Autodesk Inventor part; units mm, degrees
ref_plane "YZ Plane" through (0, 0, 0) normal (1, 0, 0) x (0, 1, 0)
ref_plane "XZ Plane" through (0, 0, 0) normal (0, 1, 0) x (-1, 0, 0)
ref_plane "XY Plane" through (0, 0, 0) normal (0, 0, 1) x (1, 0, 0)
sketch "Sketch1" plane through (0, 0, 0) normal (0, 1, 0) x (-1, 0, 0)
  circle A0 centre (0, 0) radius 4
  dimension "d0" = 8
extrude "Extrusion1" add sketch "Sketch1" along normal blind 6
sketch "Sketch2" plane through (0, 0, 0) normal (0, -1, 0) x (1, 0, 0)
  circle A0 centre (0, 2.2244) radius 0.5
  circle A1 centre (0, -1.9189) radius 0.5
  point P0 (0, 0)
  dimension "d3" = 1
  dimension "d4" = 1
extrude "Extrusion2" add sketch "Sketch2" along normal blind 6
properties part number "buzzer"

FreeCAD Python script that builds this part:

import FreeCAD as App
import Part
import Sketcher

V = App.Vector
Q = App.Units.Quantity

doc = App.newDocument("Part")
params = doc.addObject("Spreadsheet::Sheet", "Params")
for row, (alias, value) in enumerate([
    ("sketch1_diameter", "8 mm"),
    ("pad1_length", "6 mm"),
    ("sketch2_diameter", "1 mm"),
    ("pad2_length", "6 mm"),
], start=1):
    params.set(f"A{row}", alias)
    params.set(f"B{row}", "=" + value)
    params.setAlias(f"B{row}", alias)

body = doc.addObject("PartDesign::Body", "Body")

sketch1 = body.newObject("Sketcher::SketchObject", "Sketch")
sketch1.AttachmentSupport = (doc.getObject("XZ_Plane"), [""])
sketch1.MapMode = "FlatFace"
sketch1.addGeometry(Part.Circle(V(0, 0, 0), V(0, 0, 1), 4), False)
sketch1.addConstraint(Sketcher.Constraint("Coincident", 0, 3, -1, 1))
sketch1.addConstraint(Sketcher.Constraint("Diameter", 0, Q("8 mm")))
sketch1.setExpression("Constraints[1]", "Params.sketch1_diameter")
pad1 = body.newObject("PartDesign::Pad", "Pad")
pad1.Profile = sketch1
pad1.setExpression("Length", "Params.pad1_length")
pad1.Reversed = True

sketch2 = body.newObject("Sketcher::SketchObject", "Sketch001")
sketch2.AttachmentSupport = (doc.getObject("XZ_Plane"), [""])
sketch2.MapMode = "FlatFace"
sketch2.addGeometry(Part.Circle(V(0, 2.2, 0), V(0, 0, 1), 0.5), False)
sketch2.addGeometry(Part.Circle(V(0, -1.9, 0), V(0, 0, 1), 0.5), False)
sketch2.addConstraint(Sketcher.Constraint("Equal", 0, 1))
sketch2.addConstraint(Sketcher.Constraint("PointOnObject", 0, 3, -2))
sketch2.addConstraint(Sketcher.Constraint("PointOnObject", 1, 3, -2))
sketch2.addConstraint(Sketcher.Constraint("Diameter", 0, Q("1 mm")))
sketch2.addConstraint(Sketcher.Constraint("DistanceY", 1, 3, -1, 1, Q("1.919 mm")))
sketch2.addConstraint(Sketcher.Constraint("DistanceY", -1, 1, 0, 3, Q("2.2244 mm")))
sketch2.setExpression("Constraints[3]", "Params.sketch2_diameter")
pad2 = body.newObject("PartDesign::Pad", "Pad001")
pad2.Profile = sketch2
pad2.setExpression("Length", "Params.pad2_length")

doc.recompute()
